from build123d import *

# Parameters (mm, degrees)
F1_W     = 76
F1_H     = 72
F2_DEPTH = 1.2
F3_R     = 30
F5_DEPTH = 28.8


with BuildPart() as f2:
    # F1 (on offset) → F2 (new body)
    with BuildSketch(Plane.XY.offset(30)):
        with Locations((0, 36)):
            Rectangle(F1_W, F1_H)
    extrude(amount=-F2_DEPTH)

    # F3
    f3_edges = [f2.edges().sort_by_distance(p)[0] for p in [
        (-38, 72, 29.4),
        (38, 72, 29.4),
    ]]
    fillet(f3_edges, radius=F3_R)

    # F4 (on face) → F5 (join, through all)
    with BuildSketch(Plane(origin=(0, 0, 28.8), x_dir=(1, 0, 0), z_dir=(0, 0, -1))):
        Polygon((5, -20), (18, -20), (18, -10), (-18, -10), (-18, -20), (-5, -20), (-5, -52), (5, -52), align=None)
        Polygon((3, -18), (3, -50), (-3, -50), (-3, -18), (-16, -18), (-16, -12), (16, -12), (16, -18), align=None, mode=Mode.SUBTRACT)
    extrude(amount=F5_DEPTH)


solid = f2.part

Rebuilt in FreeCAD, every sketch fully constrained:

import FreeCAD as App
import Part
import Sketcher
Q = App.Units.Quantity


def edges_at(feature, points):
    """Names of the edges that pass closest to the given points."""
    edges = feature.Shape.Edges
    near = lambda p: min(range(len(edges)), key=lambda i: edges[i].distToShape(Part.Vertex(*p))[0])
    return sorted({f"Edge{near(p) + 1}" for p in points})

doc = App.newDocument("Part")
body = doc.addObject("PartDesign::Body", "Body")

sketch1 = doc.addObject("Sketcher::SketchObject", "Sketch")
body.addObject(sketch1)
sketch1.AttachmentSupport = (doc.XY_Plane, [""])
sketch1.MapMode = "FlatFace"
sketch1.AttachmentOffset = App.Placement(App.Vector(0, 0, 30), App.Rotation())
sketch1.addGeometry(Part.LineSegment(App.Vector(-38, 72, 0), App.Vector(-38, 0, 0)), False)
sketch1.addGeometry(Part.LineSegment(App.Vector(-38, 0, 0), App.Vector(38, 0, 0)), False)
sketch1.addGeometry(Part.LineSegment(App.Vector(38, 0, 0), App.Vector(38, 72, 0)), False)
sketch1.addGeometry(Part.LineSegment(App.Vector(38, 72, 0), App.Vector(-38, 72, 0)), False)
sketch1.addConstraint(Sketcher.Constraint("Coincident", 0, 2, 1, 1))
sketch1.addConstraint(Sketcher.Constraint("Coincident", 1, 2, 2, 1))
sketch1.addConstraint(Sketcher.Constraint("Coincident", 2, 2, 3, 1))
sketch1.addConstraint(Sketcher.Constraint("Coincident", 3, 2, 0, 1))
sketch1.addConstraint(Sketcher.Constraint("Vertical", 0))
sketch1.addConstraint(Sketcher.Constraint("Horizontal", 1))
sketch1.addConstraint(Sketcher.Constraint("Vertical", 2))
sketch1.addConstraint(Sketcher.Constraint("Horizontal", 3))
sketch1.addConstraint(Sketcher.Constraint("Symmetric", 0, 2, 1, 2, -1, 1))
sketch1.addConstraint(Sketcher.Constraint("DistanceX", 1, 1, 1, 2, Q("76 mm")))
sketch1.addConstraint(Sketcher.Constraint("DistanceY", 0, 2, 0, 1, Q("72 mm")))
pad1 = doc.addObject("PartDesign::Pad", "Pad")
body.addObject(pad1)
pad1.Profile = sketch1
pad1.Length = 1.2
pad1.Reversed = True
doc.recompute()

fillet = doc.addObject("PartDesign::Fillet", "Fillet")
body.addObject(fillet)
fillet.Base = (pad1, edges_at(pad1, [(-38, 72, 29.4), (38, 72, 29.4)]))
fillet.Radius = 30

sketch2 = doc.addObject("Sketcher::SketchObject", "Sketch001")
body.addObject(sketch2)
sketch2.AttachmentSupport = (doc.XY_Plane, [""])
sketch2.MapMode = "FlatFace"
sketch2.AttachmentOffset = App.Placement(App.Vector(0, 0, 28.8), App.Rotation())
sketch2.addGeometry(Part.LineSegment(App.Vector(5, 20, 0), App.Vector(18, 20, 0)), False)
sketch2.addGeometry(Part.LineSegment(App.Vector(18, 20, 0), App.Vector(18, 10, 0)), False)
sketch2.addGeometry(Part.LineSegment(App.Vector(18, 10, 0), App.Vector(-18, 10, 0)), False)
sketch2.addGeometry(Part.LineSegment(App.Vector(-18, 10, 0), App.Vector(-18, 20, 0)), False)
sketch2.addGeometry(Part.LineSegment(App.Vector(-18, 20, 0), App.Vector(-5, 20, 0)), False)
sketch2.addGeometry(Part.LineSegment(App.Vector(-5, 20, 0), App.Vector(-5, 52, 0)), False)
sketch2.addGeometry(Part.LineSegment(App.Vector(-5, 52, 0), App.Vector(5, 52, 0)), False)
sketch2.addGeometry(Part.LineSegment(App.Vector(5, 52, 0), App.Vector(5, 20, 0)), False)
sketch2.addGeometry(Part.LineSegment(App.Vector(16, 18, 0), App.Vector(3, 18, 0)), False)
sketch2.addGeometry(Part.LineSegment(App.Vector(3, 18, 0), App.Vector(3, 50, 0)), False)
sketch2.addGeometry(Part.LineSegment(App.Vector(3, 50, 0), App.Vector(-3, 50, 0)), False)
sketch2.addGeometry(Part.LineSegment(App.Vector(-3, 50, 0), App.Vector(-3, 18, 0)), False)
sketch2.addGeometry(Part.LineSegment(App.Vector(-3, 18, 0), App.Vector(-16, 18, 0)), False)
sketch2.addGeometry(Part.LineSegment(App.Vector(-16, 18, 0), App.Vector(-16, 12, 0)), False)
sketch2.addGeometry(Part.LineSegment(App.Vector(-16, 12, 0), App.Vector(16, 12, 0)), False)
sketch2.addGeometry(Part.LineSegment(App.Vector(16, 12, 0), App.Vector(16, 18, 0)), False)
sketch2.addConstraint(Sketcher.Constraint("Coincident", 0, 2, 1, 1))
sketch2.addConstraint(Sketcher.Constraint("Coincident", 1, 2, 2, 1))
sketch2.addConstraint(Sketcher.Constraint("Coincident", 2, 2, 3, 1))
sketch2.addConstraint(Sketcher.Constraint("Coincident", 3, 2, 4, 1))
sketch2.addConstraint(Sketcher.Constraint("Coincident", 4, 2, 5, 1))
sketch2.addConstraint(Sketcher.Constraint("Coincident", 5, 2, 6, 1))
sketch2.addConstraint(Sketcher.Constraint("Coincident", 6, 2, 7, 1))
sketch2.addConstraint(Sketcher.Constraint("Coincident", 7, 2, 0, 1))
sketch2.addConstraint(Sketcher.Constraint("Coincident", 8, 2, 9, 1))
sketch2.addConstraint(Sketcher.Constraint("Coincident", 9, 2, 10, 1))
sketch2.addConstraint(Sketcher.Constraint("Coincident", 10, 2, 11, 1))
sketch2.addConstraint(Sketcher.Constraint("Coincident", 11, 2, 12, 1))
sketch2.addConstraint(Sketcher.Constraint("Coincident", 12, 2, 13, 1))
sketch2.addConstraint(Sketcher.Constraint("Coincident", 13, 2, 14, 1))
sketch2.addConstraint(Sketcher.Constraint("Coincident", 14, 2, 15, 1))
sketch2.addConstraint(Sketcher.Constraint("Coincident", 15, 2, 8, 1))
sketch2.addConstraint(Sketcher.Constraint("Horizontal", 0))
sketch2.addConstraint(Sketcher.Constraint("Vertical", 1))
sketch2.addConstraint(Sketcher.Constraint("Horizontal", 2))
sketch2.addConstraint(Sketcher.Constraint("Vertical", 3))
sketch2.addConstraint(Sketcher.Constraint("Horizontal", 4))
sketch2.addConstraint(Sketcher.Constraint("Vertical", 5))
sketch2.addConstraint(Sketcher.Constraint("Horizontal", 6))
sketch2.addConstraint(Sketcher.Constraint("Vertical", 7))
sketch2.addConstraint(Sketcher.Constraint("Horizontal", 8))
sketch2.addConstraint(Sketcher.Constraint("Vertical", 9))
sketch2.addConstraint(Sketcher.Constraint("Horizontal", 10))
sketch2.addConstraint(Sketcher.Constraint("Vertical", 11))
sketch2.addConstraint(Sketcher.Constraint("Horizontal", 12))
sketch2.addConstraint(Sketcher.Constraint("Vertical", 13))
sketch2.addConstraint(Sketcher.Constraint("Horizontal", 14))
sketch2.addConstraint(Sketcher.Constraint("Vertical", 15))
sketch2.addConstraint(Sketcher.Constraint("Symmetric", 0, 2, 3, 2, -2))
sketch2.addConstraint(Sketcher.Constraint("Symmetric", 8, 2, 11, 2, -2))
sketch2.addConstraint(Sketcher.Constraint("Equal", 0, 4))
sketch2.addConstraint(Sketcher.Constraint("Equal", 4, 8))
sketch2.addConstraint(Sketcher.Constraint("Equal", 8, 12))
sketch2.addConstraint(Sketcher.Constraint("Equal", 6, 1))
sketch2.addConstraint(Sketcher.Constraint("Equal", 14, 5))
sketch2.addConstraint(Sketcher.Constraint("Equal", 7, 9))
sketch2.addConstraint(Sketcher.Constraint("Equal", 10, 13))
sketch2.addConstraint(Sketcher.Constraint("DistanceX", 0, 1, 0, 2, Q("13 mm")))
sketch2.addConstraint(Sketcher.Constraint("DistanceX", 2, 2, 2, 1, Q("36 mm")))
sketch2.addConstraint(Sketcher.Constraint("DistanceX", 10, 2, 10, 1, Q("6 mm")))
sketch2.addConstraint(Sketcher.Constraint("DistanceY", -1, 1, 0, 2, Q("20 mm")))
sketch2.addConstraint(Sketcher.Constraint("DistanceY", -1, 1, 8, 2, Q("18 mm")))
pad2 = doc.addObject("PartDesign::Pad", "Pad001")
body.addObject(pad2)
pad2.Profile = sketch2
pad2.Length = 28.8
pad2.Reversed = True

doc.recompute()
